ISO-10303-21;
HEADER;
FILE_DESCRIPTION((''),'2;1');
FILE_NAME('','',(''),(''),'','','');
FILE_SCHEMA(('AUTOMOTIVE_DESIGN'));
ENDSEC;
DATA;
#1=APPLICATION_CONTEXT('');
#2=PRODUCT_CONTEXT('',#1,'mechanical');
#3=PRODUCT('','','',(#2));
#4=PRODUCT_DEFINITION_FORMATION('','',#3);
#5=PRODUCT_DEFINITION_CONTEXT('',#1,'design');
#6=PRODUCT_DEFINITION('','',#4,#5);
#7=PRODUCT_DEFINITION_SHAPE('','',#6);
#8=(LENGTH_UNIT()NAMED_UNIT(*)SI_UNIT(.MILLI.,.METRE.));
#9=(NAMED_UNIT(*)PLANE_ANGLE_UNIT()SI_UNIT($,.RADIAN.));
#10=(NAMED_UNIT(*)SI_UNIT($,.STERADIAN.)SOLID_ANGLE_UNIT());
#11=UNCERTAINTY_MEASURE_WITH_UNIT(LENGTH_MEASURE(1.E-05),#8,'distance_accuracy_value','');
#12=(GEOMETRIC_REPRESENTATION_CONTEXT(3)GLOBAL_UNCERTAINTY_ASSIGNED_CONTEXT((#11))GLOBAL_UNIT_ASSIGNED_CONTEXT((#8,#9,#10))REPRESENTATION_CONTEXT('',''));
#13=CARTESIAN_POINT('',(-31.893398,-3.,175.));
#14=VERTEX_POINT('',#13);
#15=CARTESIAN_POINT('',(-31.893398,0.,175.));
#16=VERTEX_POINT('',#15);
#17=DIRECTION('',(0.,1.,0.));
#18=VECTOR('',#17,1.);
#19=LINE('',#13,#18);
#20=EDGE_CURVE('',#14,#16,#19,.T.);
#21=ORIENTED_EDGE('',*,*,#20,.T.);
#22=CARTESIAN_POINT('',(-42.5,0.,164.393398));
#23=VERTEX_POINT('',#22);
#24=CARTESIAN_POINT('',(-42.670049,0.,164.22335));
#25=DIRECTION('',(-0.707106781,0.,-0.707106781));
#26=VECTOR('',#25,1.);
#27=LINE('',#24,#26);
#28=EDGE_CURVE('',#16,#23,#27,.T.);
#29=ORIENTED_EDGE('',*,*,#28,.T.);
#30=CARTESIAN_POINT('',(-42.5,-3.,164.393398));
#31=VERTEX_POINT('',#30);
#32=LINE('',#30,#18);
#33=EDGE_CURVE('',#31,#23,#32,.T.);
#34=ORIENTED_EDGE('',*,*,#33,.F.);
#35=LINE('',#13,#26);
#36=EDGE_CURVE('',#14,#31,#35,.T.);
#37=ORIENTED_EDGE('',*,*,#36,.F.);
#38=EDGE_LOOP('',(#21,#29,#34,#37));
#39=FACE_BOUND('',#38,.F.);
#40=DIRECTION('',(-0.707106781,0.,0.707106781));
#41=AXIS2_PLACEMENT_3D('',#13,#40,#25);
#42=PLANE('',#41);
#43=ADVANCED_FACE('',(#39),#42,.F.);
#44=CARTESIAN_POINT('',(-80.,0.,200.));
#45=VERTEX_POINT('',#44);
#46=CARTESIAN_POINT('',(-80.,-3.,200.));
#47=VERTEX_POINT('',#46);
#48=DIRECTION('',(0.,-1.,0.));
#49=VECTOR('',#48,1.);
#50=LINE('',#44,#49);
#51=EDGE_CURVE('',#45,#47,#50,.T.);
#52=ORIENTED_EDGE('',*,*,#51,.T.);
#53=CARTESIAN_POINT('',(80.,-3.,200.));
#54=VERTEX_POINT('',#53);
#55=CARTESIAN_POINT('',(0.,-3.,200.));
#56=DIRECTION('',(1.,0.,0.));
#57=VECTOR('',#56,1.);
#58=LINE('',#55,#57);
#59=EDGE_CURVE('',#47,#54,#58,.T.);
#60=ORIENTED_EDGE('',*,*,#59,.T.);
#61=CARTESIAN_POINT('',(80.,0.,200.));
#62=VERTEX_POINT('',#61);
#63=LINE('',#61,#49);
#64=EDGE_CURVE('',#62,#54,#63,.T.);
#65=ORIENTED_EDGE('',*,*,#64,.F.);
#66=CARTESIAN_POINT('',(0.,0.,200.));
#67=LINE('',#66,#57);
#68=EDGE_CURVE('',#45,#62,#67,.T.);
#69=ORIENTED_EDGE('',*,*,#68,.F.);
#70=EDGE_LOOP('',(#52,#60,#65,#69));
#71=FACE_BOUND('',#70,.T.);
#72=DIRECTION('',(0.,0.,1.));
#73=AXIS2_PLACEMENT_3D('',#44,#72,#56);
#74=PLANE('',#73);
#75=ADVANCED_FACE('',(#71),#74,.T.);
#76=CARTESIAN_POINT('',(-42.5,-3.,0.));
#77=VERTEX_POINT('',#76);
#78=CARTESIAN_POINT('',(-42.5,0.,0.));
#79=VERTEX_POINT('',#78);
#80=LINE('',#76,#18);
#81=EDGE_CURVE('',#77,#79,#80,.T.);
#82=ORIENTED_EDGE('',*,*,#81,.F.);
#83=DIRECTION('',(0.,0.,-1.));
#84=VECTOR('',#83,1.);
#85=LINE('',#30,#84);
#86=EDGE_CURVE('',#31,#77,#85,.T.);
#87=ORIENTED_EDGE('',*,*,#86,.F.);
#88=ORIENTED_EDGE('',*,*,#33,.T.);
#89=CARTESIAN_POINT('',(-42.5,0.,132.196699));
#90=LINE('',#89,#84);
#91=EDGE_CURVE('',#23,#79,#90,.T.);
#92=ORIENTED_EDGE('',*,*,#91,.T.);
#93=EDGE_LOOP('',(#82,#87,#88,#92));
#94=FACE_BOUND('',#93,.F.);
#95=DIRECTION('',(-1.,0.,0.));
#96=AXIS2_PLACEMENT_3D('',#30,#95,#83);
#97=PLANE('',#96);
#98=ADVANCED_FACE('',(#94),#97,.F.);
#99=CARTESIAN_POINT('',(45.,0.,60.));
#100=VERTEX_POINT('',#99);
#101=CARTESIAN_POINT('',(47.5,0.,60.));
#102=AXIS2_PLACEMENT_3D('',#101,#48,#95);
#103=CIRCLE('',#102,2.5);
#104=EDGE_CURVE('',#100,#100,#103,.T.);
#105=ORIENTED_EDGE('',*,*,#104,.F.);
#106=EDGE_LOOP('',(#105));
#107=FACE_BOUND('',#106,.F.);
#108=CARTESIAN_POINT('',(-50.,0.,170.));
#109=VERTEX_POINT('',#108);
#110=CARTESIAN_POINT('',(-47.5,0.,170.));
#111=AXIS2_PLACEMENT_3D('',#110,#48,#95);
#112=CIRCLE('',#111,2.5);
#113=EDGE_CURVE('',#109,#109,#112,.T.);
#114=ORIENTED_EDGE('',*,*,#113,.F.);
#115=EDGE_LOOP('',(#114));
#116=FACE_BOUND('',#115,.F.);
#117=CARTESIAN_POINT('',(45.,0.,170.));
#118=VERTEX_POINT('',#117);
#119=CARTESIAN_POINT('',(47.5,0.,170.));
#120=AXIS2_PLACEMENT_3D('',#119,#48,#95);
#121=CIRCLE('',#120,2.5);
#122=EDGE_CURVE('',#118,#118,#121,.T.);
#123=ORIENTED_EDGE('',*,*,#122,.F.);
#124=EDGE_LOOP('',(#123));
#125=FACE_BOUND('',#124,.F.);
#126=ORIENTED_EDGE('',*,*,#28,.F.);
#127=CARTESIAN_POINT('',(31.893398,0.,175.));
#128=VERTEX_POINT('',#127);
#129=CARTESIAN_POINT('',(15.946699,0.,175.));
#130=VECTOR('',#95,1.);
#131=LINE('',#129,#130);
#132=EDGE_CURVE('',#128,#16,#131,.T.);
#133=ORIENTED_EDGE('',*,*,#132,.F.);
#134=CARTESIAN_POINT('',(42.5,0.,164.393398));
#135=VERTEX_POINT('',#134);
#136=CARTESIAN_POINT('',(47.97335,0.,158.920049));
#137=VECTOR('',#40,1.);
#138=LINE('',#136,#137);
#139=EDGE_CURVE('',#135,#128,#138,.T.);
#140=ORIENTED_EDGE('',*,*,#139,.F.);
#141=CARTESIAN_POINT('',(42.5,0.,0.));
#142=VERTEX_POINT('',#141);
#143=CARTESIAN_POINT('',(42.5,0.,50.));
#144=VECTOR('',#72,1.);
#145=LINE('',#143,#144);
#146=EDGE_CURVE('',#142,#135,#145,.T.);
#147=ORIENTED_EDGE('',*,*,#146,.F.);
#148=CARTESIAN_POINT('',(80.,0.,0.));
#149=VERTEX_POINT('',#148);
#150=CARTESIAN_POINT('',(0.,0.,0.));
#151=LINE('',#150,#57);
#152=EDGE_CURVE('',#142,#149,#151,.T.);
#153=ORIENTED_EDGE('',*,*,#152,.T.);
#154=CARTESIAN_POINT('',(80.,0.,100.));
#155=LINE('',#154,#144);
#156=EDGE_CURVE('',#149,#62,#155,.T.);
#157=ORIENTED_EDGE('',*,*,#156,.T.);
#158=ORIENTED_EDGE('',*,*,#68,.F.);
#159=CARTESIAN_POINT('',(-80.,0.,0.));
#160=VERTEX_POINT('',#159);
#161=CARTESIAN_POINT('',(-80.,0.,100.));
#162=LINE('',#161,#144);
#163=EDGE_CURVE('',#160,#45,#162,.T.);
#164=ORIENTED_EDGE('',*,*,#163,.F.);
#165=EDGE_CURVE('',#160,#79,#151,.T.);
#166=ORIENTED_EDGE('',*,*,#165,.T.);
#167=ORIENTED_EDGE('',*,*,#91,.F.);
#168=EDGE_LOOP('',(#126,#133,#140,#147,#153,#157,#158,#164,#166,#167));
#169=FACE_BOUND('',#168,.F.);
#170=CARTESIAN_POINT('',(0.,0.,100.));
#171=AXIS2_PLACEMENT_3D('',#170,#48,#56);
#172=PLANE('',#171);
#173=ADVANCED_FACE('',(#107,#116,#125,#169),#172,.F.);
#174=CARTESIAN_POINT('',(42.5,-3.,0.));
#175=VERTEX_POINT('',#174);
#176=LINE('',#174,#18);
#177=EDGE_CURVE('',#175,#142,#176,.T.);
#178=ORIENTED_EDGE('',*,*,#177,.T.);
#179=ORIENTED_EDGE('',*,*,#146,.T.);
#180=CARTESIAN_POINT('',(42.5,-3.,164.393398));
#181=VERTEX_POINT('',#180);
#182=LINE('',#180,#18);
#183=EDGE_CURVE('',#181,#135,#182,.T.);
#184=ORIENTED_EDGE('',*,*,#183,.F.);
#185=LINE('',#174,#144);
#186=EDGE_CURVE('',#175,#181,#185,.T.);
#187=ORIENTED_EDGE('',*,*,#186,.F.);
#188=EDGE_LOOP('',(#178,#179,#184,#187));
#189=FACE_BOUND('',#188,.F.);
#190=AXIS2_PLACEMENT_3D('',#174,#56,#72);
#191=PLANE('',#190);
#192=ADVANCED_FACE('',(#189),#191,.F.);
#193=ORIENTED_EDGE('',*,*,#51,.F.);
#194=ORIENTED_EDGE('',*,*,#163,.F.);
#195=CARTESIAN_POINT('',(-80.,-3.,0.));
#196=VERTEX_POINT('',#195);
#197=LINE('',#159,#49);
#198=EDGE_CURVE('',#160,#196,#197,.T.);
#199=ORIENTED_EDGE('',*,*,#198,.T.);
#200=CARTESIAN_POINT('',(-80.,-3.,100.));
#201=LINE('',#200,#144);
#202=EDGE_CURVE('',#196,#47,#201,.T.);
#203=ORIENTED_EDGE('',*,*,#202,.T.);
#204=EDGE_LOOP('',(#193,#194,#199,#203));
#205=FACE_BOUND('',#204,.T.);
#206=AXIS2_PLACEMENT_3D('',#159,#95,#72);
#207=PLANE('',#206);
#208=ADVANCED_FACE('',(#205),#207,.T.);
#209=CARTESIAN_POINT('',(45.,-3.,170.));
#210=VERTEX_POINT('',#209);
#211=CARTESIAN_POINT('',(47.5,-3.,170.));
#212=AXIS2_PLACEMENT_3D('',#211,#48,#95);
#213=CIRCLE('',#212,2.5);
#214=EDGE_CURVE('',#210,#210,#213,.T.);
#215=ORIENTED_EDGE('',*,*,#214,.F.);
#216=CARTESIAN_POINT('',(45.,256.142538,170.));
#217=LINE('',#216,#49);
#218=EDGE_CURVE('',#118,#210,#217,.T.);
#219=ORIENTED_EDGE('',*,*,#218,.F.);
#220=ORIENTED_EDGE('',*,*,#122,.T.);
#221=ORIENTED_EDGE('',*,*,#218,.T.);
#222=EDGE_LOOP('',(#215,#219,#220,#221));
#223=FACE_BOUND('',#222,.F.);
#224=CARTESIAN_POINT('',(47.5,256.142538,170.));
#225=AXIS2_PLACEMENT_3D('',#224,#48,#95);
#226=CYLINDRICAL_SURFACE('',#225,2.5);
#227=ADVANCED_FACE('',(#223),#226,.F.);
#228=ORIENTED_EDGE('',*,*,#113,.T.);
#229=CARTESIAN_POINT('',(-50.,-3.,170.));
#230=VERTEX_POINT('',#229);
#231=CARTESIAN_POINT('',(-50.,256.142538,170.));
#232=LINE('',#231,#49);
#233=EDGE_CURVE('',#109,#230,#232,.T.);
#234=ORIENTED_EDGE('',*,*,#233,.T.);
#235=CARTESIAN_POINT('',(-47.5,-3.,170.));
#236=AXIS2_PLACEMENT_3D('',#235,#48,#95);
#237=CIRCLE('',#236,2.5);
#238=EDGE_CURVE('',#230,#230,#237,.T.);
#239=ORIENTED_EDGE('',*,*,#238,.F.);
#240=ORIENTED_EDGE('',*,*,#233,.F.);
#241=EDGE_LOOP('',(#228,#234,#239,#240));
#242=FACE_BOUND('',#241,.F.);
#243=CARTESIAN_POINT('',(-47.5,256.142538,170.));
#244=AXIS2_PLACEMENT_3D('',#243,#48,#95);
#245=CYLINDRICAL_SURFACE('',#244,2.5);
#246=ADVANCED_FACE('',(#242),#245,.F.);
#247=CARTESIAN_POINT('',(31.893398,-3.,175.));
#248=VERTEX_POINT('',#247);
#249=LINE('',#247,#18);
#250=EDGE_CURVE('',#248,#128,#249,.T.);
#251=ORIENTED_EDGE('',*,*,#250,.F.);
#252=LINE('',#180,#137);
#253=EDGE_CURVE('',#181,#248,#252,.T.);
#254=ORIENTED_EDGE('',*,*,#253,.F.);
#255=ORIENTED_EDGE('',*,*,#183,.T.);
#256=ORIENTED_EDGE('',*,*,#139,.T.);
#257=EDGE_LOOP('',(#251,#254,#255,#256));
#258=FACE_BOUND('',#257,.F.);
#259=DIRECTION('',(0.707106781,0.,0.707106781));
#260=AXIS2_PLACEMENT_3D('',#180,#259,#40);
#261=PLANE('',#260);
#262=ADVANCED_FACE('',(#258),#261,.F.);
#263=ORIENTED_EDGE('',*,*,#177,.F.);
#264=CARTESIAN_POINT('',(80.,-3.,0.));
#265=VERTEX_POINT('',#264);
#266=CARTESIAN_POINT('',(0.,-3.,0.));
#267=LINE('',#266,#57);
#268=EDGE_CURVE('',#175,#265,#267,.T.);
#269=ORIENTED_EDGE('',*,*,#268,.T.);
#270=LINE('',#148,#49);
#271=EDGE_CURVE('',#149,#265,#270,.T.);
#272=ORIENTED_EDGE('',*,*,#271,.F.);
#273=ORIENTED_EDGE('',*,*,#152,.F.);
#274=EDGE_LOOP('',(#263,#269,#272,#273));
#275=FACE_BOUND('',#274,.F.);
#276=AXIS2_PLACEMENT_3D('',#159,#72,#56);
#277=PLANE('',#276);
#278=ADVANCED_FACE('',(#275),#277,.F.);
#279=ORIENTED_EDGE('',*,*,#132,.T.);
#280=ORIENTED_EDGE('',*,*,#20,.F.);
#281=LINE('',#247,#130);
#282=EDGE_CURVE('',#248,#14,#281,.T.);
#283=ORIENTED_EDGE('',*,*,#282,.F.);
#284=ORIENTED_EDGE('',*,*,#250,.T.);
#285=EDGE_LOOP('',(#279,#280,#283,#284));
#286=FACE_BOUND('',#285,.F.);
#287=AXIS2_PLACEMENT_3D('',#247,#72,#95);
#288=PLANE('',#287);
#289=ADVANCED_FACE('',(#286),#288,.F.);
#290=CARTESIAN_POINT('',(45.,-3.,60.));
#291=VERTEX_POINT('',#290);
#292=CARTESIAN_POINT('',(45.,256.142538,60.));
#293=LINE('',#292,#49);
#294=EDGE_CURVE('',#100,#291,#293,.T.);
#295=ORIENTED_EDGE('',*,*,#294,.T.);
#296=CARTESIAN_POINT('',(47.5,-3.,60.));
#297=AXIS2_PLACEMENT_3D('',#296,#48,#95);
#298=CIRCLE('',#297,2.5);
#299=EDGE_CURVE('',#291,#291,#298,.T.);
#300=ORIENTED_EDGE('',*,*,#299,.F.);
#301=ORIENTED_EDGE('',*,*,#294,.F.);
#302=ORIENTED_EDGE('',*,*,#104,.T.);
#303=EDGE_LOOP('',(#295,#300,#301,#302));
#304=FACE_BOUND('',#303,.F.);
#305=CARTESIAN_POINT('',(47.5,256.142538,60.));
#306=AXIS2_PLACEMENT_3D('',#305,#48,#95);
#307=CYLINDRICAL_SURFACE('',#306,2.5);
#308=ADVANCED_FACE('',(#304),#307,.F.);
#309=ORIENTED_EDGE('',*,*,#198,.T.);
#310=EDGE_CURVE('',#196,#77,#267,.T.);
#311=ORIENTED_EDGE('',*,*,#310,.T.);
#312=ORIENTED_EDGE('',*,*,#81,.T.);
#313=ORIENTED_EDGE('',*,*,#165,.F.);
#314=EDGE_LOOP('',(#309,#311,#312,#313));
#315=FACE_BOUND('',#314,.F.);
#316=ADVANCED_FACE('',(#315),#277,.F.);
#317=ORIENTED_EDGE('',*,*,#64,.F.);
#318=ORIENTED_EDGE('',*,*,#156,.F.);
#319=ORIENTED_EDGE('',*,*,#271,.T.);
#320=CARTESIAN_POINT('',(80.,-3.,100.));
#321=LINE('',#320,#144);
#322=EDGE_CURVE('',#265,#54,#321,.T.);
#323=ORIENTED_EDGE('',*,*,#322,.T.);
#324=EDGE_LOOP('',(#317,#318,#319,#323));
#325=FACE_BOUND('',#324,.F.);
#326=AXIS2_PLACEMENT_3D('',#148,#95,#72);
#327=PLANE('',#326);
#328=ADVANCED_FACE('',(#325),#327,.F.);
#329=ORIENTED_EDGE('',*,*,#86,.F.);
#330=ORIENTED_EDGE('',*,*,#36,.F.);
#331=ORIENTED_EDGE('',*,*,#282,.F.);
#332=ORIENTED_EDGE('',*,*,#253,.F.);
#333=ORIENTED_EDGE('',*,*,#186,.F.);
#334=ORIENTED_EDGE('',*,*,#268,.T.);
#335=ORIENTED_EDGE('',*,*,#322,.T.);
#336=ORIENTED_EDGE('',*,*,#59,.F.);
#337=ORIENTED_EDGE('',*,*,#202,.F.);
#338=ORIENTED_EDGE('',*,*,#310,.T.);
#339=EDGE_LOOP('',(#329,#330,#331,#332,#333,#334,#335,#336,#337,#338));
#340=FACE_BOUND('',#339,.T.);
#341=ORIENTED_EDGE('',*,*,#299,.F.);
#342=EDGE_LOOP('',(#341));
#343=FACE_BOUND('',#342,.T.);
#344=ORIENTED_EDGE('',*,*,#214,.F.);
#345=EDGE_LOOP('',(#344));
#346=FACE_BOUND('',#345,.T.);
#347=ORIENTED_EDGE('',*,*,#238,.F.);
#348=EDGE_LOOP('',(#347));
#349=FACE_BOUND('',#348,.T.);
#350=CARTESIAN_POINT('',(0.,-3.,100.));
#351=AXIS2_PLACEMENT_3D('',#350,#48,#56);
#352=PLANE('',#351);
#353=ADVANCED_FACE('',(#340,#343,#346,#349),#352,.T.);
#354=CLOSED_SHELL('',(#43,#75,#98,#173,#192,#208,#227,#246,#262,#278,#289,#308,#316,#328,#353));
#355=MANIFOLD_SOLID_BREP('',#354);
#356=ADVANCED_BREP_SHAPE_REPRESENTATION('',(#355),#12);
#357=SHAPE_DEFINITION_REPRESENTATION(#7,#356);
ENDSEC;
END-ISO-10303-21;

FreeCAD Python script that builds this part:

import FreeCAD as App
import Part
import Sketcher


def add_polygon(sketch, points):
    """Adds a closed chain of lines whose ends are joined by coincident constraints."""
    first, n = sketch.GeometryCount, len(points)
    for a, b in zip(points, points[1:] + points[:1]):
        sketch.addGeometry(Part.LineSegment(App.Vector(*a, 0), App.Vector(*b, 0)), False)
    for i in range(n):
        sketch.addConstraint(Sketcher.Constraint("Coincident", first + i, 2, first + (i + 1) % n, 1))

doc = App.newDocument("Part")
body = doc.addObject("PartDesign::Body", "Body")

sketch1 = body.newObject("Sketcher::SketchObject", "Sketch")
sketch1.AttachmentSupport = (doc.getObject("XZ_Plane"), [""])
sketch1.MapMode = "FlatFace"
add_polygon(sketch1, [(-80, 200), (-80, 0), (80, 0), (80, 200)])
sketch1.addConstraint(Sketcher.Constraint("Vertical", 0))
sketch1.addConstraint(Sketcher.Constraint("Horizontal", 1))
sketch1.addConstraint(Sketcher.Constraint("Vertical", 2))
sketch1.addConstraint(Sketcher.Constraint("Horizontal", 3))
sketch1.addConstraint(Sketcher.Constraint("Symmetric", 0, 2, 1, 2, -1, 1))
sketch1.addConstraint(Sketcher.Constraint("DistanceX", 1, 1, 1, 2, 160.0))
sketch1.addConstraint(Sketcher.Constraint("DistanceY", 0, 2, 0, 1, 200.0))
pad1 = body.newObject("PartDesign::Pad", "Pad")
pad1.Profile = sketch1
pad1.Length = 3

sketch2 = body.newObject("Sketcher::SketchObject", "Sketch001")
sketch2.AttachmentSupport = (doc.getObject("XZ_Plane"), [""])
sketch2.MapMode = "FlatFace"
sketch2.addGeometry(Part.Circle(App.Vector(47.5, 170, 0), App.Vector(0, 0, 1), 2.5), False)
sketch2.addGeometry(Part.Circle(App.Vector(-47.5, 170, 0), App.Vector(0, 0, 1), 2.5), False)
sketch2.addGeometry(Part.Circle(App.Vector(47.5, 60, 0), App.Vector(0, 0, 1), 2.5), False)
sketch2.addConstraint(Sketcher.Constraint("Equal", 0, 1))
sketch2.addConstraint(Sketcher.Constraint("Equal", 1, 2))
sketch2.addConstraint(Sketcher.Constraint("Symmetric", 0, 3, 1, 3, -2))
sketch2.addConstraint(Sketcher.Constraint("Vertical", 0, 3, 2, 3))
sketch2.addConstraint(Sketcher.Constraint("Diameter", 0, 5.0))
sketch2.addConstraint(Sketcher.Constraint("DistanceY", -1, 1, 0, 3, 170.0))
sketch2.addConstraint(Sketcher.Constraint("DistanceY", -1, 1, 2, 3, 60.0))
sketch2.addConstraint(Sketcher.Constraint("DistanceX", 1, 3, 0, 3, 95.0))
doc.recompute()
hole = body.newObject("PartDesign::Hole", "Hole")
hole.Profile = sketch2
hole.ThreadType = "None"
hole.Diameter = 5
hole.DepthType = "ThroughAll"
hole.Reversed = True

sketch3 = body.newObject("Sketcher::SketchObject", "Sketch002")
sketch3.AttachmentSupport = (doc.getObject("XZ_Plane"), [""])
sketch3.MapMode = "FlatFace"
sketch3.AttachmentOffset = App.Placement(App.Vector(0, 0, 3), App.Rotation())
add_polygon(sketch3, [(-31.893398, 175), (-42.5, 164.393398), (-42.5, 0), (42.5, 0), (42.5, 164.393398), (31.893398, 175)])
sketch3.addConstraint(Sketcher.Constraint("Vertical", 1))
sketch3.addConstraint(Sketcher.Constraint("Horizontal", 2))
sketch3.addConstraint(Sketcher.Constraint("Vertical", 3))
sketch3.addConstraint(Sketcher.Constraint("Horizontal", 5))
sketch3.addConstraint(Sketcher.Constraint("Symmetric", 1, 2, 2, 2, -1, 1))
sketch3.addConstraint(Sketcher.Constraint("Perpendicular", 0, 4))
sketch3.addConstraint(Sketcher.Constraint("Horizontal", 0, 2, 3, 2))
sketch3.addConstraint(Sketcher.Constraint("Equal", 0, 4))
sketch3.addConstraint(Sketcher.Constraint("DistanceX", 2, 1, 2, 2, 85.0))
sketch3.addConstraint(Sketcher.Constraint("Distance", 0, 15.0))
sketch3.addConstraint(Sketcher.Constraint("DistanceY", -1, 1, 4, 2, 175.0))
pocket1 = body.newObject("PartDesign::Pocket", "Pocket")
pocket1.Profile = sketch3
pocket1.Length = 25

doc.recompute()
